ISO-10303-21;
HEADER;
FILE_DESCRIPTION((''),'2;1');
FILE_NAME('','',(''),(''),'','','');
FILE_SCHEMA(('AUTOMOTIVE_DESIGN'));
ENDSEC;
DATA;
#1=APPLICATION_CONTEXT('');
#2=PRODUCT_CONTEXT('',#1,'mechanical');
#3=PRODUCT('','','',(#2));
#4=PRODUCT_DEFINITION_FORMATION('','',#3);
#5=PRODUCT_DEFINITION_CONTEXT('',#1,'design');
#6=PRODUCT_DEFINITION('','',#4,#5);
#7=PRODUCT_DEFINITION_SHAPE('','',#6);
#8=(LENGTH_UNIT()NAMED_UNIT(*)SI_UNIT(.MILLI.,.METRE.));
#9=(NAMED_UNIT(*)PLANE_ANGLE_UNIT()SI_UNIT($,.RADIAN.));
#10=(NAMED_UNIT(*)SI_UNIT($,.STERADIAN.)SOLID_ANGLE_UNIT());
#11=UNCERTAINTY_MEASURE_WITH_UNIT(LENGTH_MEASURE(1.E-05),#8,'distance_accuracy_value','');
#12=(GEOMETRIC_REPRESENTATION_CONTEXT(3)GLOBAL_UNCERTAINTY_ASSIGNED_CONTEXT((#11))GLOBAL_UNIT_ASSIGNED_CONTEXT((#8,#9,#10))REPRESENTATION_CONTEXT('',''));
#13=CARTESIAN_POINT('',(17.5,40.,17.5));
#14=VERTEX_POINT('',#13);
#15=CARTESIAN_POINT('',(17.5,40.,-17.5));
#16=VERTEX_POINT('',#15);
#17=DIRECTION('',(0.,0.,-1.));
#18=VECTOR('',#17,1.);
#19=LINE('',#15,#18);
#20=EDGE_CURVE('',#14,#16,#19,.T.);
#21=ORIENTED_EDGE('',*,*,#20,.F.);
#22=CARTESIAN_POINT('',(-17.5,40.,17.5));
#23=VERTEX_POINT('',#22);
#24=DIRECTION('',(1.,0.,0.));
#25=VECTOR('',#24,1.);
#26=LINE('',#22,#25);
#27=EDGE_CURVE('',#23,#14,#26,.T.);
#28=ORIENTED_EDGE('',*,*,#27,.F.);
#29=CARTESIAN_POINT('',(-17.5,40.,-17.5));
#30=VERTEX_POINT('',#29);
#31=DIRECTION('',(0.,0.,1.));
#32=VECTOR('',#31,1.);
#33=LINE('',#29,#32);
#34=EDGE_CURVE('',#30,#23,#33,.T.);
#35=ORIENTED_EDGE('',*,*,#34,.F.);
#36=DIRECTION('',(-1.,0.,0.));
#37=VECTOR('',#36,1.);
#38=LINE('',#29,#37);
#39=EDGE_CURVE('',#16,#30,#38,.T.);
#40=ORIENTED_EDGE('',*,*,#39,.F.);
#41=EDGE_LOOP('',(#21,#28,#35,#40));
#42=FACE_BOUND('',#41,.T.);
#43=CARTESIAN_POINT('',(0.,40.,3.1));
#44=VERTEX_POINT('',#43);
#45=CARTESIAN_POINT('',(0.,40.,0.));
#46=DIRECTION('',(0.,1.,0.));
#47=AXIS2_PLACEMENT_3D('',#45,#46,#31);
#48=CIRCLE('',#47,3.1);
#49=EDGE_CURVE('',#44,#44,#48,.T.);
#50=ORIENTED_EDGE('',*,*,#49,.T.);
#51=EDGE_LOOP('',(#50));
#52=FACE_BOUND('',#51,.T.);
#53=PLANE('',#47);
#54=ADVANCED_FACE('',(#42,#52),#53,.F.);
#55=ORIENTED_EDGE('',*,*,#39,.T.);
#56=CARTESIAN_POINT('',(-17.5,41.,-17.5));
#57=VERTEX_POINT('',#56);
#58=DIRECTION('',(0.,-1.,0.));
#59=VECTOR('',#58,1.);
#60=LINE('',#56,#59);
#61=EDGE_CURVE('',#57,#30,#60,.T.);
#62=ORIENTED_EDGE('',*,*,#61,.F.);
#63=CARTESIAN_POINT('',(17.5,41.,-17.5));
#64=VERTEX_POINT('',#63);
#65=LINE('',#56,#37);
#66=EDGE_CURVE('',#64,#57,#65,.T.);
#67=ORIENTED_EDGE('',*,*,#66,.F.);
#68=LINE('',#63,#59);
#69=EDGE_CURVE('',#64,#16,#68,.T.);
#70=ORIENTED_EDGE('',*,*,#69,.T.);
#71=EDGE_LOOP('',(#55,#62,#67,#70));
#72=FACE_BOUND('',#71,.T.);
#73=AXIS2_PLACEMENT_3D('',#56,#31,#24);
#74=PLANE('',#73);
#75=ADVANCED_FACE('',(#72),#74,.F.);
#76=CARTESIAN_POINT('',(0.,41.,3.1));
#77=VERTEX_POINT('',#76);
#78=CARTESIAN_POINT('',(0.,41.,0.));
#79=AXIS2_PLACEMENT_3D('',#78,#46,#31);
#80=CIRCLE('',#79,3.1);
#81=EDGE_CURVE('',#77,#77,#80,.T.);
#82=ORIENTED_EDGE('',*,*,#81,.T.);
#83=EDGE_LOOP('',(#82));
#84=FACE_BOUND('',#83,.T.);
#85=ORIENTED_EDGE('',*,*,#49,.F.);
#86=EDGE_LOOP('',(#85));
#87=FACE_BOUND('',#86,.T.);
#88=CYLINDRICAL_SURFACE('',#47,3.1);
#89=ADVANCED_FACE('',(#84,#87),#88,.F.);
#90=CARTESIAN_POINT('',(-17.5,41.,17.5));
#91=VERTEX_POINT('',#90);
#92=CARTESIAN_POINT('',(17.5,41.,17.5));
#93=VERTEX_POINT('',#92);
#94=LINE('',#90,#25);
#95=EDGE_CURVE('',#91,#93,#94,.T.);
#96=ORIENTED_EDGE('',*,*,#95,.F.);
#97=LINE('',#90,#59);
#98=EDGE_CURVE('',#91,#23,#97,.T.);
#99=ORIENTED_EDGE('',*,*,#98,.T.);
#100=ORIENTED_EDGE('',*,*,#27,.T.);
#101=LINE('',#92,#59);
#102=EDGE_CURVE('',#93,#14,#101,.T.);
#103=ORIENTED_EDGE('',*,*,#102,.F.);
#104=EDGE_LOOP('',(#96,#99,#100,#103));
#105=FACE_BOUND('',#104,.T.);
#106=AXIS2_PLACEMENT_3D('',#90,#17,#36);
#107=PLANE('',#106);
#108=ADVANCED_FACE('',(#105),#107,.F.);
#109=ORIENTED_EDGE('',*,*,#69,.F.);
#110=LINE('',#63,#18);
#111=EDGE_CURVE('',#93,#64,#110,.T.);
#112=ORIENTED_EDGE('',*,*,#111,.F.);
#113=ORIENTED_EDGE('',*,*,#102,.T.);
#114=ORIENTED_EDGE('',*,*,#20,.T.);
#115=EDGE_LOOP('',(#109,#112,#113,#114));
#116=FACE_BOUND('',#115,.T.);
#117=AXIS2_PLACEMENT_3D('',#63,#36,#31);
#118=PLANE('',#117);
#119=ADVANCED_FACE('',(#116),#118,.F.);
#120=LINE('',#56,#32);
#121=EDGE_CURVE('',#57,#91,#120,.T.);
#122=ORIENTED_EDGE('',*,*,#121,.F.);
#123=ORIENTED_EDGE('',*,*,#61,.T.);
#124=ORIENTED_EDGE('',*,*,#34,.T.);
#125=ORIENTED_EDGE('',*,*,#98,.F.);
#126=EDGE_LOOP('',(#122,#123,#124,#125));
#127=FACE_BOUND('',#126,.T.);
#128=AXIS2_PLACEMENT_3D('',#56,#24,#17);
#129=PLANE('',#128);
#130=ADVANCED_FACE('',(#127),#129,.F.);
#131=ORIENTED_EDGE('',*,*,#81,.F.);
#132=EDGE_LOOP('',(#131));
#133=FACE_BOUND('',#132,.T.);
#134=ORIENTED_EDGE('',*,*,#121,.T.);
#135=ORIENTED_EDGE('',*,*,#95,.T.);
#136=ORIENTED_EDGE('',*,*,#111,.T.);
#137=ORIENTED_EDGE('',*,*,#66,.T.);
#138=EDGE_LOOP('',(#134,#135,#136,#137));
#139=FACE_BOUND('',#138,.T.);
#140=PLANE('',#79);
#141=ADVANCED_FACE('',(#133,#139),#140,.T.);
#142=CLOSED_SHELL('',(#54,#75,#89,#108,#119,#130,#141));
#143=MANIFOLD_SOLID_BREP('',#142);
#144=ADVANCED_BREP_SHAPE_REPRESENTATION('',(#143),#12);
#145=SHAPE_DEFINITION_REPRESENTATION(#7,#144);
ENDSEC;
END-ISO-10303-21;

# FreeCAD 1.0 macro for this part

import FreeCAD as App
import Part
import Sketcher
from FreeCAD import Vector
Q = App.Units.Quantity

doc = App.newDocument("Part")
body = doc.addObject("PartDesign::Body", "Body")

sketch1 = doc.addObject("Sketcher::SketchObject", "Sketch")
body.addObject(sketch1)
sketch1.AttachmentSupport = (doc.XZ_Plane, [""])
sketch1.MapMode = "FlatFace"
sketch1.addGeometry(Part.LineSegment(Vector(-18, -18, 0), Vector(-18, 18, 0)), False)
sketch1.addGeometry(Part.LineSegment(Vector(-18, 18, 0), Vector(18, 18, 0)), False)
sketch1.addGeometry(Part.LineSegment(Vector(18, 18, 0), Vector(18, -18, 0)), False)
sketch1.addGeometry(Part.LineSegment(Vector(18, -18, 0), Vector(-18, -18, 0)), False)
sketch1.addConstraint(Sketcher.Constraint("Coincident", 0, 2, 1, 1))
sketch1.addConstraint(Sketcher.Constraint("Coincident", 1, 2, 2, 1))
sketch1.addConstraint(Sketcher.Constraint("Coincident", 2, 2, 3, 1))
sketch1.addConstraint(Sketcher.Constraint("Coincident", 3, 2, 0, 1))
sketch1.addConstraint(Sketcher.Constraint("Vertical", 0))
sketch1.addConstraint(Sketcher.Constraint("Horizontal", 1))
sketch1.addConstraint(Sketcher.Constraint("Vertical", 2))
sketch1.addConstraint(Sketcher.Constraint("Horizontal", 3))
sketch1.addConstraint(Sketcher.Constraint("Symmetric", 0, 2, 2, 2, -1, 1))
sketch1.addConstraint(Sketcher.Constraint("Equal", 3, 0))
sketch1.addConstraint(Sketcher.Constraint("DistanceX", 1, 1, 1, 2, Q("35 mm")))
pad1 = doc.addObject("PartDesign::Pad", "Pad")
body.addObject(pad1)
pad1.Profile = sketch1
pad1.Length = 10
pad1.Reversed = True
body2 = doc.addObject("PartDesign::Body", "Body001")

sketch2 = doc.addObject("Sketcher::SketchObject", "Sketch001")
body2.addObject(sketch2)
sketch2.AttachmentSupport = (doc.getObject("XZ_Plane001"), [""])
sketch2.MapMode = "FlatFace"
sketch2.AttachmentOffset = App.Placement(Vector(0, 0, -10), App.Rotation())
sketch2.addGeometry(Part.LineSegment(Vector(-18, -18, 0), Vector(-18, 18, 0)), False)
sketch2.addGeometry(Part.LineSegment(Vector(-18, 18, 0), Vector(18, 18, 0)), False)
sketch2.addGeometry(Part.LineSegment(Vector(18, 18, 0), Vector(18, -18, 0)), False)
sketch2.addGeometry(Part.LineSegment(Vector(18, -18, 0), Vector(-18, -18, 0)), False)
sketch2.addGeometry(Part.LineSegment(Vector(12, 12, 0), Vector(-12, 12, 0)), False)
sketch2.addGeometry(Part.LineSegment(Vector(-12, 12, 0), Vector(-12, -12, 0)), False)
sketch2.addGeometry(Part.LineSegment(Vector(-12, -12, 0), Vector(12, -12, 0)), False)
sketch2.addGeometry(Part.LineSegment(Vector(12, -12, 0), Vector(12, 12, 0)), False)
sketch2.addConstraint(Sketcher.Constraint("Coincident", 0, 2, 1, 1))
sketch2.addConstraint(Sketcher.Constraint("Coincident", 1, 2, 2, 1))
sketch2.addConstraint(Sketcher.Constraint("Coincident", 2, 2, 3, 1))
sketch2.addConstraint(Sketcher.Constraint("Coincident", 3, 2, 0, 1))
sketch2.addConstraint(Sketcher.Constraint("Coincident", 4, 2, 5, 1))
sketch2.addConstraint(Sketcher.Constraint("Coincident", 5, 2, 6, 1))
sketch2.addConstraint(Sketcher.Constraint("Coincident", 6, 2, 7, 1))
sketch2.addConstraint(Sketcher.Constraint("Coincident", 7, 2, 4, 1))
sketch2.addConstraint(Sketcher.Constraint("Vertical", 0))
sketch2.addConstraint(Sketcher.Constraint("Horizontal", 1))
sketch2.addConstraint(Sketcher.Constraint("Vertical", 2))
sketch2.addConstraint(Sketcher.Constraint("Horizontal", 3))
sketch2.addConstraint(Sketcher.Constraint("Horizontal", 4))
sketch2.addConstraint(Sketcher.Constraint("Vertical", 5))
sketch2.addConstraint(Sketcher.Constraint("Horizontal", 6))
sketch2.addConstraint(Sketcher.Constraint("Vertical", 7))
sketch2.addConstraint(Sketcher.Constraint("Symmetric", 0, 2, 2, 2, -1, 1))
sketch2.addConstraint(Sketcher.Constraint("Symmetric", 4, 2, 6, 2, -1, 1))
sketch2.addConstraint(Sketcher.Constraint("Equal", 3, 0))
sketch2.addConstraint(Sketcher.Constraint("Equal", 6, 5))
sketch2.addConstraint(Sketcher.Constraint("DistanceX", 1, 1, 1, 2, Q("35 mm")))
sketch2.addConstraint(Sketcher.Constraint("DistanceX", 4, 2, 4, 1, Q("25 mm")))
pad2 = doc.addObject("PartDesign::Pad", "Pad001")
body2.addObject(pad2)
pad2.Profile = sketch2
pad2.Length = 15
pad2.Reversed = True
body3 = doc.addObject("PartDesign::Body", "Body002")

sketch3 = doc.addObject("Sketcher::SketchObject", "Sketch002")
body3.addObject(sketch3)
sketch3.AttachmentSupport = (doc.getObject("XZ_Plane002"), [""])
sketch3.MapMode = "FlatFace"
sketch3.AttachmentOffset = App.Placement(Vector(0, 0, -25), App.Rotation())
sketch3.addGeometry(Part.LineSegment(Vector(-18, -18, 0), Vector(-18, 18, 0)), False)
sketch3.addGeometry(Part.LineSegment(Vector(-18, 18, 0), Vector(18, 18, 0)), False)
sketch3.addGeometry(Part.LineSegment(Vector(18, 18, 0), Vector(18, -18, 0)), False)
sketch3.addGeometry(Part.LineSegment(Vector(18, -18, 0), Vector(-18, -18, 0)), False)
sketch3.addConstraint(Sketcher.Constraint("Coincident", 0, 2, 1, 1))
sketch3.addConstraint(Sketcher.Constraint("Coincident", 1, 2, 2, 1))
sketch3.addConstraint(Sketcher.Constraint("Coincident", 2, 2, 3, 1))
sketch3.addConstraint(Sketcher.Constraint("Coincident", 3, 2, 0, 1))
sketch3.addConstraint(Sketcher.Constraint("Vertical", 0))
sketch3.addConstraint(Sketcher.Constraint("Horizontal", 1))
sketch3.addConstraint(Sketcher.Constraint("Vertical", 2))
sketch3.addConstraint(Sketcher.Constraint("Horizontal", 3))
sketch3.addConstraint(Sketcher.Constraint("Symmetric", 0, 2, 2, 2, -1, 1))
sketch3.addConstraint(Sketcher.Constraint("Equal", 3, 0))
sketch3.addConstraint(Sketcher.Constraint("DistanceX", 1, 1, 1, 2, Q("35 mm")))
pad3 = doc.addObject("PartDesign::Pad", "Pad002")
body3.addObject(pad3)
pad3.Profile = sketch3
pad3.Length = 15
pad3.Reversed = True
body4 = doc.addObject("PartDesign::Body", "Body003")

sketch4 = doc.addObject("Sketcher::SketchObject", "Sketch003")
body4.addObject(sketch4)
sketch4.AttachmentSupport = (doc.getObject("XZ_Plane003"), [""])
sketch4.MapMode = "FlatFace"
sketch4.addGeometry(Part.Circle(Vector(0, 0, 0), Vector(0, 0, 1), 3), False)
sketch4.addConstraint(Sketcher.Constraint("Coincident", 0, 3, -1, 1))
sketch4.addConstraint(Sketcher.Constraint("Diameter", 0, Q("6.1 mm")))
pad4 = doc.addObject("PartDesign::Pad", "Pad003")
body4.addObject(pad4)
pad4.Profile = sketch4
pad4.Length = 40
pad4.Reversed = True
doc.recompute()

body5 = doc.addObject("PartDesign::Body", "Body004")
body5.BaseFeature = body4
boolean = doc.addObject("PartDesign::Boolean", "Boolean")
body.addObject(boolean)
boolean.Type = "Cut"
boolean.addObjects([body5])
doc.recompute()

boolean2 = doc.addObject("PartDesign::Boolean", "Boolean001")
body3.addObject(boolean2)
boolean2.Type = "Cut"
boolean2.addObjects([body4])

sketch5 = doc.addObject("Sketcher::SketchObject", "Sketch004")
body3.addObject(sketch5)
sketch5.AttachmentSupport = (doc.getObject("XY_Plane002"), [""])
sketch5.MapMode = "FlatFace"
sketch5.AttachmentOffset = App.Placement(Vector(0, 0, -17.5), App.Rotation())
sketch5.addGeometry(Part.LineSegment(Vector(17.5, 26, 0), Vector(17.5, 25, 0)), False)
sketch5.addGeometry(Part.LineSegment(Vector(17.5, 25, 0), Vector(10, 25, 0)), False)
sketch5.addGeometry(Part.LineSegment(Vector(10, 25, 0), Vector(10, 26, 0)), False)
sketch5.addGeometry(Part.LineSegment(Vector(10, 26, 0), Vector(17.5, 26, 0)), False)
sketch5.addGeometry(Part.LineSegment(Vector(-10, 26.3, 0), Vector(-10, 25, 0)), False)
sketch5.addGeometry(Part.LineSegment(Vector(-10, 25, 0), Vector(-17.5, 25, 0)), False)
sketch5.addGeometry(Part.LineSegment(Vector(-17.5, 25, 0), Vector(-17.5, 26.3, 0)), False)
sketch5.addGeometry(Part.LineSegment(Vector(-17.5, 26.3, 0), Vector(-10, 26.3, 0)), False)
sketch5.addConstraint(Sketcher.Constraint("Coincident", 0, 2, 1, 1))
sketch5.addConstraint(Sketcher.Constraint("Coincident", 1, 2, 2, 1))
sketch5.addConstraint(Sketcher.Constraint("Coincident", 2, 2, 3, 1))
sketch5.addConstraint(Sketcher.Constraint("Coincident", 3, 2, 0, 1))
sketch5.addConstraint(Sketcher.Constraint("Coincident", 4, 2, 5, 1))
sketch5.addConstraint(Sketcher.Constraint("Coincident", 5, 2, 6, 1))
sketch5.addConstraint(Sketcher.Constraint("Coincident", 6, 2, 7, 1))
sketch5.addConstraint(Sketcher.Constraint("Coincident", 7, 2, 4, 1))
sketch5.addConstraint(Sketcher.Constraint("Vertical", 0))
sketch5.addConstraint(Sketcher.Constraint("Horizontal", 1))
sketch5.addConstraint(Sketcher.Constraint("Vertical", 2))
sketch5.addConstraint(Sketcher.Constraint("Horizontal", 3))
sketch5.addConstraint(Sketcher.Constraint("Vertical", 4))
sketch5.addConstraint(Sketcher.Constraint("Horizontal", 5))
sketch5.addConstraint(Sketcher.Constraint("Vertical", 6))
sketch5.addConstraint(Sketcher.Constraint("Horizontal", 7))
sketch5.addConstraint(Sketcher.Constraint("Symmetric", 1, 2, 4, 2, -2))
sketch5.addConstraint(Sketcher.Constraint("Equal", 3, 5))
sketch5.addConstraint(Sketcher.Constraint("DistanceX", 1, 2, 1, 1, Q("7.5 mm")))
sketch5.addConstraint(Sketcher.Constraint("DistanceY", -1, 1, 0, 2, Q("25 mm")))
sketch5.addConstraint(Sketcher.Constraint("DistanceX", -1, 1, 1, 2, Q("10 mm")))
sketch5.addConstraint(Sketcher.Constraint("DistanceY", 0, 2, 0, 1, Q("1.017843 mm")))
sketch5.addConstraint(Sketcher.Constraint("DistanceY", 4, 2, 4, 1, Q("1.276183 mm")))
pad5 = doc.addObject("PartDesign::Pad", "Pad004")
body3.addObject(pad5)
pad5.Profile = sketch5
pad5.Type = "TwoLengths"
pad5.Length = 10
pad5.Length2 = 40
pad5.Reversed = True

sketch6 = doc.addObject("Sketcher::SketchObject", "Sketch005")
body3.addObject(sketch6)
sketch6.AttachmentSupport = (doc.getObject("XZ_Plane002"), [""])
sketch6.MapMode = "FlatFace"
sketch6.AttachmentOffset = App.Placement(Vector(0, 0, -26.276183), App.Rotation())
sketch6.addGeometry(Part.Circle(Vector(-13.8, -22.5, 0), Vector(0, 0, 1), 2.8), False)
sketch6.addGeometry(Part.Circle(Vector(8.8, -22.5, 0), Vector(0, 0, 1), 2.8), False)
sketch6.addGeometry(Part.Circle(Vector(8.8, 18, 0), Vector(0, 0, 1), 2.8), False)
sketch6.addGeometry(Part.Circle(Vector(-13.8, 18, 0), Vector(0, 0, 1), 2.8), False)
sketch6.addConstraint(Sketcher.Constraint("Equal", 0, 1))
sketch6.addConstraint(Sketcher.Constraint("Equal", 1, 2))
sketch6.addConstraint(Sketcher.Constraint("Equal", 2, 3))
sketch6.addConstraint(Sketcher.Constraint("Horizontal", 0, 3, 1, 3))
sketch6.addConstraint(Sketcher.Constraint("Horizontal", 2, 3, 3, 3))
sketch6.addConstraint(Sketcher.Constraint("Vertical", 1, 3, 2, 3))
sketch6.addConstraint(Sketcher.Constraint("Vertical", 0, 3, 3, 3))
sketch6.addConstraint(Sketcher.Constraint("Diameter", 0, Q("5.52 mm")))
sketch6.addConstraint(Sketcher.Constraint("DistanceY", -1, 1, 2, 3, Q("18 mm")))
sketch6.addConstraint(Sketcher.Constraint("DistanceY", 0, 3, -1, 1, Q("22.5 mm")))
sketch6.addConstraint(Sketcher.Constraint("DistanceX", 0, 3, 1, 3, Q("22.5 mm")))
sketch6.addConstraint(Sketcher.Constraint("DistanceX", 0, 3, -1, 1, Q("13.75 mm")))
pocket1 = doc.addObject("PartDesign::Pocket", "Pocket")
body3.addObject(pocket1)
pocket1.Profile = sketch6
pocket1.Length = 10
pocket1.Reversed = True
body6 = doc.addObject("PartDesign::Body", "Body005")

sketch7 = doc.addObject("Sketcher::SketchObject", "Sketch006")
body6.addObject(sketch7)
sketch7.AttachmentSupport = (doc.getObject("XZ_Plane005"), [""])
sketch7.MapMode = "FlatFace"
sketch7.AttachmentOffset = App.Placement(Vector(0, 0, -40), App.Rotation())
sketch7.addGeometry(Part.LineSegment(Vector(-18, -18, 0), Vector(-18, 18, 0)), False)
sketch7.addGeometry(Part.LineSegment(Vector(-18, 18, 0), Vector(18, 18, 0)), False)
sketch7.addGeometry(Part.LineSegment(Vector(18, 18, 0), Vector(18, -18, 0)), False)
sketch7.addGeometry(Part.LineSegment(Vector(18, -18, 0), Vector(-18, -18, 0)), False)
sketch7.addConstraint(Sketcher.Constraint("Coincident", 0, 2, 1, 1))
sketch7.addConstraint(Sketcher.Constraint("Coincident", 1, 2, 2, 1))
sketch7.addConstraint(Sketcher.Constraint("Coincident", 2, 2, 3, 1))
sketch7.addConstraint(Sketcher.Constraint("Coincident", 3, 2, 0, 1))
sketch7.addConstraint(Sketcher.Constraint("Vertical", 0))
sketch7.addConstraint(Sketcher.Constraint("Horizontal", 1))
sketch7.addConstraint(Sketcher.Constraint("Vertical", 2))
sketch7.addConstraint(Sketcher.Constraint("Horizontal", 3))
sketch7.addConstraint(Sketcher.Constraint("Symmetric", 0, 2, 2, 2, -1, 1))
sketch7.addConstraint(Sketcher.Constraint("Equal", 3, 0))
sketch7.addConstraint(Sketcher.Constraint("DistanceX", 1, 1, 1, 2, Q("35 mm")))
pad6 = doc.addObject("PartDesign::Pad", "Pad005")
body6.addObject(pad6)
pad6.Profile = sketch7
pad6.Length = 1
pad6.Reversed = True

sketch8 = doc.addObject("Sketcher::SketchObject", "Sketch007")
body6.addObject(sketch8)
sketch8.AttachmentSupport = (doc.getObject("XZ_Plane005"), [""])
sketch8.MapMode = "FlatFace"
sketch8.AttachmentOffset = App.Placement(Vector(0, 0, -41), App.Rotation())
sketch8.addGeometry(Part.Circle(Vector(0, 0, 0), Vector(0, 0, 1), 3.1), False)
sketch8.addConstraint(Sketcher.Constraint("Coincident", 0, 3, -1, 1))
sketch8.addConstraint(Sketcher.Constraint("Diameter", 0, Q("6.2 mm")))
pocket2 = doc.addObject("PartDesign::Pocket", "Pocket001")
body6.addObject(pocket2)
pocket2.Profile = sketch8
pocket2.Length = 1
pocket2.Reversed = True
body.Visibility = False
body2.Visibility = False
body3.Visibility = False

doc.recompute()
